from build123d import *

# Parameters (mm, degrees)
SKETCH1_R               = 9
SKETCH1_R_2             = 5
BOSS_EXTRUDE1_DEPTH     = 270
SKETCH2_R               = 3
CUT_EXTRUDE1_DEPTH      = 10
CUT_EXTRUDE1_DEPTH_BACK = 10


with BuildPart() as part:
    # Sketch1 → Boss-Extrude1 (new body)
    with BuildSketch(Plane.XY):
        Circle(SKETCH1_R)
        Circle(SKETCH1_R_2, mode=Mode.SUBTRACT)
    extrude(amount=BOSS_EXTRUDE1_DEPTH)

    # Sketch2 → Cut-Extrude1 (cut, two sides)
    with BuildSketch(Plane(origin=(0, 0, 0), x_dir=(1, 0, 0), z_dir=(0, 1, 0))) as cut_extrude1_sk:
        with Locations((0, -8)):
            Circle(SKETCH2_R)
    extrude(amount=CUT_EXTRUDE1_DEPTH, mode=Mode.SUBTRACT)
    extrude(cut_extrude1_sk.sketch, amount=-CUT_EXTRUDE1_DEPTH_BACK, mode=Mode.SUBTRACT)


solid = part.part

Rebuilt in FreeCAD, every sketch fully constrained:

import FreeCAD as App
import Part
import Sketcher
from FreeCAD import Vector

doc = App.newDocument("Part")
body = doc.addObject("PartDesign::Body", "Body")

# Sketch on XY plane
sketch1 = body.newObject("Sketcher::SketchObject", "Sketch")
sketch1.AttachmentSupport = (doc.getObject("XY_Plane"), [""])
sketch1.MapMode = "FlatFace"
sketch1.addGeometry(Part.Circle(Vector(0, 0, 0), Vector(0, 0, 1), 9), False)
sketch1.addGeometry(Part.Circle(Vector(0, 0, 0), Vector(0, 0, 1), 5), False)
sketch1.addConstraint(Sketcher.Constraint("Coincident", 0, 3, -1, 1))
sketch1.addConstraint(Sketcher.Constraint("Coincident", 1, 3, -1, 1))
sketch1.addConstraint(Sketcher.Constraint("Diameter", 0, 18.0))
sketch1.addConstraint(Sketcher.Constraint("Diameter", 1, 10.0))
pad1 = body.newObject("PartDesign::Pad", "Pad")
pad1.Profile = sketch1
pad1.Length = 270

# Sketch on XZ plane
sketch2 = body.newObject("Sketcher::SketchObject", "Sketch001")
sketch2.AttachmentSupport = (doc.getObject("XZ_Plane"), [""])
sketch2.MapMode = "FlatFace"
sketch2.addGeometry(Part.Circle(Vector(0, 8, 0), Vector(0, 0, 1), 3), False)
sketch2.addConstraint(Sketcher.Constraint("PointOnObject", 0, 3, -2))
sketch2.addConstraint(Sketcher.Constraint("Diameter", 0, 6.0))
sketch2.addConstraint(Sketcher.Constraint("DistanceY", -1, 1, 0, 3, 8.0))
pocket1 = body.newObject("PartDesign::Pocket", "Pocket")
pocket1.Profile = sketch2
pocket1.Type = "ThroughAll"
pocket1.Midplane = True

doc.recompute()
